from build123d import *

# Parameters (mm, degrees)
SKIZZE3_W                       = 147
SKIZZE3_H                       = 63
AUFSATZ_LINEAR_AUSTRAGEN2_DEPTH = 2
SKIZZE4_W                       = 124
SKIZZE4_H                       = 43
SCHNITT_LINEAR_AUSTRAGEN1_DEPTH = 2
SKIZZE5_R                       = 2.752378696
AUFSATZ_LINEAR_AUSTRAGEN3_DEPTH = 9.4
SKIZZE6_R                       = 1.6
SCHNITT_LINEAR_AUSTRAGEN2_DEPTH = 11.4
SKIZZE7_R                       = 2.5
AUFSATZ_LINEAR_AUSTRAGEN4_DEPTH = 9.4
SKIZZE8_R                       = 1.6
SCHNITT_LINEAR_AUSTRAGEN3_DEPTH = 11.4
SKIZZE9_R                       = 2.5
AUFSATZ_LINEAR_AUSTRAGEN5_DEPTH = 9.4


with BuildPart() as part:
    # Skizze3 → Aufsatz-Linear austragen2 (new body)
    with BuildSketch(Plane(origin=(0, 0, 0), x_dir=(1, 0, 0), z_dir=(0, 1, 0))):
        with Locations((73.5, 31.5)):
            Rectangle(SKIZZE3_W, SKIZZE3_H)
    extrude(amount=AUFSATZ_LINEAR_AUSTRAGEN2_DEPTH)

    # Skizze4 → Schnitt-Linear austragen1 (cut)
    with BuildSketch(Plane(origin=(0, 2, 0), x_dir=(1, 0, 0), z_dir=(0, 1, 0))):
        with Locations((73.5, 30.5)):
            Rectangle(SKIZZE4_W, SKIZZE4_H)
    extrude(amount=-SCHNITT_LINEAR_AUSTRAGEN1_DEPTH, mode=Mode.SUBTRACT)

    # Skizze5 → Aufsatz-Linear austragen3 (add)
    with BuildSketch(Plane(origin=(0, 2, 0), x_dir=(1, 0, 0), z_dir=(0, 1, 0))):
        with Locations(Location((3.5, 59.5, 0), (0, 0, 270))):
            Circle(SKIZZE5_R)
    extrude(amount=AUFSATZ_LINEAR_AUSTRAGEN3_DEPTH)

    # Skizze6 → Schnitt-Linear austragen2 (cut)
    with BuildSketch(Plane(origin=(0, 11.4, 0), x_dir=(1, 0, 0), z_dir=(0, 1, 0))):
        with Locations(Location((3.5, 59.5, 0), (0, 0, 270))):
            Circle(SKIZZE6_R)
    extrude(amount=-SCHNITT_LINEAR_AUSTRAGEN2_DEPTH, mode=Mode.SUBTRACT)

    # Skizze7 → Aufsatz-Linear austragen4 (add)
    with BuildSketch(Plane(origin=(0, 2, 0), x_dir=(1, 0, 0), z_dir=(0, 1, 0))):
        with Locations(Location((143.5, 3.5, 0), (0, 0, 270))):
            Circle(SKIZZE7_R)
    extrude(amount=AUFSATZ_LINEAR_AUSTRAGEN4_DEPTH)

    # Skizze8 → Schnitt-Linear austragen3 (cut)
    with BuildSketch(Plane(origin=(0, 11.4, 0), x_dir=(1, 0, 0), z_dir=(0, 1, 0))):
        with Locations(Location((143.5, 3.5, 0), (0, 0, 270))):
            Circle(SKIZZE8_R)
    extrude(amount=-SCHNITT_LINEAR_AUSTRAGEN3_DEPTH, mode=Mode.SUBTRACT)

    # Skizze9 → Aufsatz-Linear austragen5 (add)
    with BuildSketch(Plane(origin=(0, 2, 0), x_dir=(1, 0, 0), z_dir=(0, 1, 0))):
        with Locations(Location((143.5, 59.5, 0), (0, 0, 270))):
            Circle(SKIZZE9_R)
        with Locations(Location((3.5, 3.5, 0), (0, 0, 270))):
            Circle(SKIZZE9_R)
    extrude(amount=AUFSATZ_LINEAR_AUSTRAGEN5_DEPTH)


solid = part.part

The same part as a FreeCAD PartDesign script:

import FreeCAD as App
import Part
import Sketcher


def add_polygon(sketch, points):
    """Adds a closed chain of lines whose ends are joined by coincident constraints."""
    first, n = sketch.GeometryCount, len(points)
    for a, b in zip(points, points[1:] + points[:1]):
        sketch.addGeometry(Part.LineSegment(App.Vector(*a, 0), App.Vector(*b, 0)), False)
    for i in range(n):
        sketch.addConstraint(Sketcher.Constraint("Coincident", first + i, 2, first + (i + 1) % n, 1))

doc = App.newDocument("Part")
params = doc.addObject("Spreadsheet::Sheet", "Params")
for row, (alias, value) in enumerate([
    ("sketch1_width", "147 mm"),
    ("sketch1_height", "63 mm"),
    ("pad1_length", "2 mm"),
    ("sketch2_width", "124 mm"),
    ("sketch2_height", "43 mm"),
    ("pocket1_length", "2 mm"),
    ("pad2_length", "9.4 mm"),
    ("sketch4_diameter", "3.2 mm"),
    ("pocket2_length", "11.4 mm"),
    ("sketch5_diameter", "5 mm"),
    ("pad3_length", "9.4 mm"),
    ("sketch6_diameter", "3.2 mm"),
    ("pocket3_length", "11.4 mm"),
    ("sketch7_diameter", "5 mm"),
    ("pad4_length", "9.4 mm"),
], start=1):
    params.set(f"A{row}", alias)
    params.set(f"B{row}", "=" + value)
    params.setAlias(f"B{row}", alias)

body = doc.addObject("PartDesign::Body", "Body")

sketch1 = body.newObject("Sketcher::SketchObject", "Sketch")
sketch1.AttachmentSupport = (doc.getObject("XZ_Plane"), [""])
sketch1.MapMode = "FlatFace"
add_polygon(sketch1, [(0, -63), (0, 0), (147, 0), (147, -63)])
sketch1.addConstraint(Sketcher.Constraint("Vertical", 0))
sketch1.addConstraint(Sketcher.Constraint("Horizontal", 1))
sketch1.addConstraint(Sketcher.Constraint("Vertical", 2))
sketch1.addConstraint(Sketcher.Constraint("Horizontal", 3))
sketch1.addConstraint(Sketcher.Constraint("Coincident", 0, 2, -1, 1))
sketch1.addConstraint(Sketcher.Constraint("DistanceX", 1, 1, 1, 2, 147.0))
sketch1.addConstraint(Sketcher.Constraint("DistanceY", 0, 1, 0, 2, 63.0))
sketch1.setExpression("Constraints[9]", "Params.sketch1_width")
sketch1.setExpression("Constraints[10]", "Params.sketch1_height")
pad1 = body.newObject("PartDesign::Pad", "Pad")
pad1.Profile = sketch1
pad1.setExpression("Length", "Params.pad1_length")
pad1.Reversed = True

sketch2 = body.newObject("Sketcher::SketchObject", "Sketch001")
sketch2.AttachmentSupport = (doc.getObject("XZ_Plane"), [""])
sketch2.MapMode = "FlatFace"
sketch2.AttachmentOffset = App.Placement(App.Vector(0, 0, -2), App.Rotation())
add_polygon(sketch2, [(11.5, -52), (11.5, -9), (135.5, -9), (135.5, -52)])
sketch2.addConstraint(Sketcher.Constraint("Vertical", 0))
sketch2.addConstraint(Sketcher.Constraint("Horizontal", 1))
sketch2.addConstraint(Sketcher.Constraint("Vertical", 2))
sketch2.addConstraint(Sketcher.Constraint("Horizontal", 3))
sketch2.addConstraint(Sketcher.Constraint("DistanceX", 1, 1, 1, 2, 124.0))
sketch2.addConstraint(Sketcher.Constraint("DistanceY", 0, 1, 0, 2, 43.0))
sketch2.addConstraint(Sketcher.Constraint("DistanceY", 0, 2, -1, 1, 9.0))
sketch2.addConstraint(Sketcher.Constraint("DistanceX", -1, 1, 0, 2, 11.5))
sketch2.setExpression("Constraints[8]", "Params.sketch2_width")
sketch2.setExpression("Constraints[9]", "Params.sketch2_height")
pocket1 = body.newObject("PartDesign::Pocket", "Pocket")
pocket1.Profile = sketch2
pocket1.setExpression("Length", "Params.pocket1_length")
pocket1.Reversed = True

sketch3 = body.newObject("Sketcher::SketchObject", "Sketch002")
sketch3.AttachmentSupport = (doc.getObject("XZ_Plane"), [""])
sketch3.MapMode = "FlatFace"
sketch3.AttachmentOffset = App.Placement(App.Vector(0, 0, -2), App.Rotation())
sketch3.addGeometry(Part.Circle(App.Vector(3.5, -59.5, 0), App.Vector(0, 0, 1), 2.752379), False)
sketch3.addConstraint(Sketcher.Constraint("DistanceX", -1, 1, 0, 3, 3.5))
sketch3.addConstraint(Sketcher.Constraint("DistanceY", 0, 3, -1, 1, 59.5))
sketch3.addConstraint(Sketcher.Constraint("Diameter", 0, 5.504757))
pad2 = body.newObject("PartDesign::Pad", "Pad001")
pad2.Profile = sketch3
pad2.setExpression("Length", "Params.pad2_length")
pad2.Reversed = True

sketch4 = body.newObject("Sketcher::SketchObject", "Sketch003")
sketch4.AttachmentSupport = (doc.getObject("XZ_Plane"), [""])
sketch4.MapMode = "FlatFace"
sketch4.AttachmentOffset = App.Placement(App.Vector(0, 0, -11.4), App.Rotation())
sketch4.addGeometry(Part.Circle(App.Vector(3.5, -59.5, 0), App.Vector(0, 0, 1), 1.6), False)
sketch4.addConstraint(Sketcher.Constraint("Diameter", 0, 3.2))
sketch4.addConstraint(Sketcher.Constraint("DistanceX", -1, 1, 0, 3, 3.5))
sketch4.addConstraint(Sketcher.Constraint("DistanceY", 0, 3, -1, 1, 59.5))
sketch4.setExpression("Constraints[0]", "Params.sketch4_diameter")
pocket2 = body.newObject("PartDesign::Pocket", "Pocket001")
pocket2.Profile = sketch4
pocket2.setExpression("Length", "Params.pocket2_length")
pocket2.Reversed = True

sketch5 = body.newObject("Sketcher::SketchObject", "Sketch004")
sketch5.AttachmentSupport = (doc.getObject("XZ_Plane"), [""])
sketch5.MapMode = "FlatFace"
sketch5.AttachmentOffset = App.Placement(App.Vector(0, 0, -2), App.Rotation())
sketch5.addGeometry(Part.Circle(App.Vector(143.5, -3.5, 0), App.Vector(0, 0, 1), 2.5), False)
sketch5.addConstraint(Sketcher.Constraint("Diameter", 0, 5.0))
sketch5.addConstraint(Sketcher.Constraint("DistanceX", -1, 1, 0, 3, 143.5))
sketch5.addConstraint(Sketcher.Constraint("DistanceY", 0, 3, -1, 1, 3.5))
sketch5.setExpression("Constraints[0]", "Params.sketch5_diameter")
pad3 = body.newObject("PartDesign::Pad", "Pad002")
pad3.Profile = sketch5
pad3.setExpression("Length", "Params.pad3_length")
pad3.Reversed = True

sketch6 = body.newObject("Sketcher::SketchObject", "Sketch005")
sketch6.AttachmentSupport = (doc.getObject("XZ_Plane"), [""])
sketch6.MapMode = "FlatFace"
sketch6.AttachmentOffset = App.Placement(App.Vector(0, 0, -11.4), App.Rotation())
sketch6.addGeometry(Part.Circle(App.Vector(143.5, -3.5, 0), App.Vector(0, 0, 1), 1.6), False)
sketch6.addConstraint(Sketcher.Constraint("Diameter", 0, 3.2))
sketch6.addConstraint(Sketcher.Constraint("DistanceX", -1, 1, 0, 3, 143.5))
sketch6.addConstraint(Sketcher.Constraint("DistanceY", 0, 3, -1, 1, 3.5))
sketch6.setExpression("Constraints[0]", "Params.sketch6_diameter")
pocket3 = body.newObject("PartDesign::Pocket", "Pocket002")
pocket3.Profile = sketch6
pocket3.setExpression("Length", "Params.pocket3_length")
pocket3.Reversed = True

sketch7 = body.newObject("Sketcher::SketchObject", "Sketch006")
sketch7.AttachmentSupport = (doc.getObject("XZ_Plane"), [""])
sketch7.MapMode = "FlatFace"
sketch7.AttachmentOffset = App.Placement(App.Vector(0, 0, -2), App.Rotation())
sketch7.addGeometry(Part.Circle(App.Vector(143.5, -59.5, 0), App.Vector(0, 0, 1), 2.5), False)
sketch7.addGeometry(Part.Circle(App.Vector(3.5, -3.5, 0), App.Vector(0, 0, 1), 2.5), False)
sketch7.addConstraint(Sketcher.Constraint("Equal", 0, 1))
sketch7.addConstraint(Sketcher.Constraint("Diameter", 0, 5.0))
sketch7.addConstraint(Sketcher.Constraint("DistanceX", 1, 3, 0, 3, 140.0))
sketch7.addConstraint(Sketcher.Constraint("DistanceY", 0, 3, 1, 3, 56.0))
sketch7.addConstraint(Sketcher.Constraint("DistanceX", -1, 1, 0, 3, 143.5))
sketch7.addConstraint(Sketcher.Constraint("DistanceY", 0, 3, -1, 1, 59.5))
sketch7.setExpression("Constraints[1]", "Params.sketch7_diameter")
pad4 = body.newObject("PartDesign::Pad", "Pad003")
pad4.Profile = sketch7
pad4.setExpression("Length", "Params.pad4_length")
pad4.Reversed = True

doc.recompute()
